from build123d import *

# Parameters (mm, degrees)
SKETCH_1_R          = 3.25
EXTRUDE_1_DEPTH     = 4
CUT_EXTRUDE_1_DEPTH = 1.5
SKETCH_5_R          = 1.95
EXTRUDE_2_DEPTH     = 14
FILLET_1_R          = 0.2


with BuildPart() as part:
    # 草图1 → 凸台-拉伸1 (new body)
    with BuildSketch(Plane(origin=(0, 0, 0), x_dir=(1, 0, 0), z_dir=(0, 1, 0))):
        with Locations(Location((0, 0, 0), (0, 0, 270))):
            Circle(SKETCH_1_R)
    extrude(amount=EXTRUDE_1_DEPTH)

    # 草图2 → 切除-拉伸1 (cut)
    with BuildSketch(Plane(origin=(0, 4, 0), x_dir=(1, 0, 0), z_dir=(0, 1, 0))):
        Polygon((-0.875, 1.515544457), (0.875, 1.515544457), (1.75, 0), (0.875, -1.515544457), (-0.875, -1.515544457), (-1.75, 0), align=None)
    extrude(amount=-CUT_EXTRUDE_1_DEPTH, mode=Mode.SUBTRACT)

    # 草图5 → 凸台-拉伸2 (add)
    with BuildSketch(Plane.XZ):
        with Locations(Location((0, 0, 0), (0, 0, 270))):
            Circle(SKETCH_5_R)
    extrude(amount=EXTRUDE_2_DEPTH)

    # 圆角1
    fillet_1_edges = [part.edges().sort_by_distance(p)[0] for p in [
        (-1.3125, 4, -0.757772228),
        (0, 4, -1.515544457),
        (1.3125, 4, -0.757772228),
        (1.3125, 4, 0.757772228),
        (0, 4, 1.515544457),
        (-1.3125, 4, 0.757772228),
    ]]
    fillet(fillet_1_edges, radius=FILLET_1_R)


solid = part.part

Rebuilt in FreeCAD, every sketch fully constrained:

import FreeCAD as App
import Part
import Sketcher
from FreeCAD import Vector
Q = App.Units.Quantity


def edges_at(feature, points):
    """Names of the edges that pass closest to the given points."""
    edges = feature.Shape.Edges
    near = lambda p: min(range(len(edges)), key=lambda i: edges[i].distToShape(Part.Vertex(*p))[0])
    return sorted({f"Edge{near(p) + 1}" for p in points})

doc = App.newDocument("Part")
body = doc.addObject("PartDesign::Body", "Body")

# Sketch on XZ plane
sketch1 = body.newObject("Sketcher::SketchObject", "Sketch")
sketch1.AttachmentSupport = (doc.getObject("XZ_Plane"), [""])
sketch1.MapMode = "FlatFace"
sketch1.addGeometry(Part.Circle(Vector(0, 0, 0), Vector(0, 0, 1), 3.25), False)
sketch1.addConstraint([
    Sketcher.Constraint("Coincident", 0, 3, -1, 1),
    Sketcher.Constraint("Diameter", 0, Q("6.5 mm")),
])
pad1 = body.newObject("PartDesign::Pad", "Pad")
pad1.Profile = sketch1
pad1.Length = 4
pad1.Reversed = True

# Sketch on XZ plane
sketch2 = body.newObject("Sketcher::SketchObject", "Sketch001")
sketch2.AttachmentSupport = (doc.getObject("XZ_Plane"), [""])
sketch2.MapMode = "FlatFace"
sketch2.AttachmentOffset = App.Placement(Vector(0, 0, -4), App.Rotation())
sketch2.addGeometry([
    Part.LineSegment(Vector(0.875, -1.515544, 0), Vector(-0.875, -1.515544, 0)),  # 0
    Part.LineSegment(Vector(-0.875, -1.515544, 0), Vector(-1.75, 0, 0)),  # 1
    Part.LineSegment(Vector(-1.75, 0, 0), Vector(-0.875, 1.515544, 0)),  # 2
    Part.LineSegment(Vector(-0.875, 1.515544, 0), Vector(0.875, 1.515544, 0)),  # 3
    Part.LineSegment(Vector(0.875, 1.515544, 0), Vector(1.75, 0, 0)),  # 4
    Part.LineSegment(Vector(1.75, 0, 0), Vector(0.875, -1.515544, 0)),  # 5
], False)
sketch2.addConstraint([
    Sketcher.Constraint("Coincident", 0, 2, 1, 1),
    Sketcher.Constraint("Coincident", 1, 2, 2, 1),
    Sketcher.Constraint("Coincident", 2, 2, 3, 1),
    Sketcher.Constraint("Coincident", 3, 2, 4, 1),
    Sketcher.Constraint("Coincident", 4, 2, 5, 1),
    Sketcher.Constraint("Coincident", 5, 2, 0, 1),
    Sketcher.Constraint("Horizontal", 0),
    Sketcher.Constraint("Horizontal", 3),
    Sketcher.Constraint("Symmetric", 0, 2, 3, 2, -1, 1),
    Sketcher.Constraint("Symmetric", 1, 2, 4, 2, -1, 1),
    Sketcher.Constraint("PointOnObject", 1, 2, -1),
    Sketcher.Constraint("Parallel", 2, 5),
    Sketcher.Constraint("Vertical", 0, 2, 2, 2),
    Sketcher.Constraint("Angle", 1, Q("120 deg")),
    Sketcher.Constraint("DistanceX", 0, 2, 0, 1, Q("1.75 mm")),
    Sketcher.Constraint("DistanceX", 1, 2, 4, 2, Q("3.5 mm")),
])
pocket1 = body.newObject("PartDesign::Pocket", "Pocket")
pocket1.Profile = sketch2
pocket1.Length = 1.5
pocket1.Reversed = True

# Sketch on XZ plane
sketch3 = body.newObject("Sketcher::SketchObject", "Sketch002")
sketch3.AttachmentSupport = (doc.getObject("XZ_Plane"), [""])
sketch3.MapMode = "FlatFace"
sketch3.addGeometry(Part.Circle(Vector(0, 0, 0), Vector(0, 0, 1), 1.95), False)
sketch3.addConstraint([
    Sketcher.Constraint("Coincident", 0, 3, -1, 1),
    Sketcher.Constraint("Diameter", 0, Q("3.9 mm")),
])
pad2 = body.newObject("PartDesign::Pad", "Pad001")
pad2.Profile = sketch3
pad2.Length = 14
doc.recompute()

fillet = body.newObject("PartDesign::Fillet", "Fillet")
fillet.Base = (pad2, edges_at(pad2, [
    (-1.312, 4, -0.758),
    (0, 4, -1.516),
    (1.312, 4, -0.758),
    (1.312, 4, 0.758),
    (0, 4, 1.516),
    (-1.312, 4, 0.758),
]))
fillet.Radius = 0.2

doc.recompute()
